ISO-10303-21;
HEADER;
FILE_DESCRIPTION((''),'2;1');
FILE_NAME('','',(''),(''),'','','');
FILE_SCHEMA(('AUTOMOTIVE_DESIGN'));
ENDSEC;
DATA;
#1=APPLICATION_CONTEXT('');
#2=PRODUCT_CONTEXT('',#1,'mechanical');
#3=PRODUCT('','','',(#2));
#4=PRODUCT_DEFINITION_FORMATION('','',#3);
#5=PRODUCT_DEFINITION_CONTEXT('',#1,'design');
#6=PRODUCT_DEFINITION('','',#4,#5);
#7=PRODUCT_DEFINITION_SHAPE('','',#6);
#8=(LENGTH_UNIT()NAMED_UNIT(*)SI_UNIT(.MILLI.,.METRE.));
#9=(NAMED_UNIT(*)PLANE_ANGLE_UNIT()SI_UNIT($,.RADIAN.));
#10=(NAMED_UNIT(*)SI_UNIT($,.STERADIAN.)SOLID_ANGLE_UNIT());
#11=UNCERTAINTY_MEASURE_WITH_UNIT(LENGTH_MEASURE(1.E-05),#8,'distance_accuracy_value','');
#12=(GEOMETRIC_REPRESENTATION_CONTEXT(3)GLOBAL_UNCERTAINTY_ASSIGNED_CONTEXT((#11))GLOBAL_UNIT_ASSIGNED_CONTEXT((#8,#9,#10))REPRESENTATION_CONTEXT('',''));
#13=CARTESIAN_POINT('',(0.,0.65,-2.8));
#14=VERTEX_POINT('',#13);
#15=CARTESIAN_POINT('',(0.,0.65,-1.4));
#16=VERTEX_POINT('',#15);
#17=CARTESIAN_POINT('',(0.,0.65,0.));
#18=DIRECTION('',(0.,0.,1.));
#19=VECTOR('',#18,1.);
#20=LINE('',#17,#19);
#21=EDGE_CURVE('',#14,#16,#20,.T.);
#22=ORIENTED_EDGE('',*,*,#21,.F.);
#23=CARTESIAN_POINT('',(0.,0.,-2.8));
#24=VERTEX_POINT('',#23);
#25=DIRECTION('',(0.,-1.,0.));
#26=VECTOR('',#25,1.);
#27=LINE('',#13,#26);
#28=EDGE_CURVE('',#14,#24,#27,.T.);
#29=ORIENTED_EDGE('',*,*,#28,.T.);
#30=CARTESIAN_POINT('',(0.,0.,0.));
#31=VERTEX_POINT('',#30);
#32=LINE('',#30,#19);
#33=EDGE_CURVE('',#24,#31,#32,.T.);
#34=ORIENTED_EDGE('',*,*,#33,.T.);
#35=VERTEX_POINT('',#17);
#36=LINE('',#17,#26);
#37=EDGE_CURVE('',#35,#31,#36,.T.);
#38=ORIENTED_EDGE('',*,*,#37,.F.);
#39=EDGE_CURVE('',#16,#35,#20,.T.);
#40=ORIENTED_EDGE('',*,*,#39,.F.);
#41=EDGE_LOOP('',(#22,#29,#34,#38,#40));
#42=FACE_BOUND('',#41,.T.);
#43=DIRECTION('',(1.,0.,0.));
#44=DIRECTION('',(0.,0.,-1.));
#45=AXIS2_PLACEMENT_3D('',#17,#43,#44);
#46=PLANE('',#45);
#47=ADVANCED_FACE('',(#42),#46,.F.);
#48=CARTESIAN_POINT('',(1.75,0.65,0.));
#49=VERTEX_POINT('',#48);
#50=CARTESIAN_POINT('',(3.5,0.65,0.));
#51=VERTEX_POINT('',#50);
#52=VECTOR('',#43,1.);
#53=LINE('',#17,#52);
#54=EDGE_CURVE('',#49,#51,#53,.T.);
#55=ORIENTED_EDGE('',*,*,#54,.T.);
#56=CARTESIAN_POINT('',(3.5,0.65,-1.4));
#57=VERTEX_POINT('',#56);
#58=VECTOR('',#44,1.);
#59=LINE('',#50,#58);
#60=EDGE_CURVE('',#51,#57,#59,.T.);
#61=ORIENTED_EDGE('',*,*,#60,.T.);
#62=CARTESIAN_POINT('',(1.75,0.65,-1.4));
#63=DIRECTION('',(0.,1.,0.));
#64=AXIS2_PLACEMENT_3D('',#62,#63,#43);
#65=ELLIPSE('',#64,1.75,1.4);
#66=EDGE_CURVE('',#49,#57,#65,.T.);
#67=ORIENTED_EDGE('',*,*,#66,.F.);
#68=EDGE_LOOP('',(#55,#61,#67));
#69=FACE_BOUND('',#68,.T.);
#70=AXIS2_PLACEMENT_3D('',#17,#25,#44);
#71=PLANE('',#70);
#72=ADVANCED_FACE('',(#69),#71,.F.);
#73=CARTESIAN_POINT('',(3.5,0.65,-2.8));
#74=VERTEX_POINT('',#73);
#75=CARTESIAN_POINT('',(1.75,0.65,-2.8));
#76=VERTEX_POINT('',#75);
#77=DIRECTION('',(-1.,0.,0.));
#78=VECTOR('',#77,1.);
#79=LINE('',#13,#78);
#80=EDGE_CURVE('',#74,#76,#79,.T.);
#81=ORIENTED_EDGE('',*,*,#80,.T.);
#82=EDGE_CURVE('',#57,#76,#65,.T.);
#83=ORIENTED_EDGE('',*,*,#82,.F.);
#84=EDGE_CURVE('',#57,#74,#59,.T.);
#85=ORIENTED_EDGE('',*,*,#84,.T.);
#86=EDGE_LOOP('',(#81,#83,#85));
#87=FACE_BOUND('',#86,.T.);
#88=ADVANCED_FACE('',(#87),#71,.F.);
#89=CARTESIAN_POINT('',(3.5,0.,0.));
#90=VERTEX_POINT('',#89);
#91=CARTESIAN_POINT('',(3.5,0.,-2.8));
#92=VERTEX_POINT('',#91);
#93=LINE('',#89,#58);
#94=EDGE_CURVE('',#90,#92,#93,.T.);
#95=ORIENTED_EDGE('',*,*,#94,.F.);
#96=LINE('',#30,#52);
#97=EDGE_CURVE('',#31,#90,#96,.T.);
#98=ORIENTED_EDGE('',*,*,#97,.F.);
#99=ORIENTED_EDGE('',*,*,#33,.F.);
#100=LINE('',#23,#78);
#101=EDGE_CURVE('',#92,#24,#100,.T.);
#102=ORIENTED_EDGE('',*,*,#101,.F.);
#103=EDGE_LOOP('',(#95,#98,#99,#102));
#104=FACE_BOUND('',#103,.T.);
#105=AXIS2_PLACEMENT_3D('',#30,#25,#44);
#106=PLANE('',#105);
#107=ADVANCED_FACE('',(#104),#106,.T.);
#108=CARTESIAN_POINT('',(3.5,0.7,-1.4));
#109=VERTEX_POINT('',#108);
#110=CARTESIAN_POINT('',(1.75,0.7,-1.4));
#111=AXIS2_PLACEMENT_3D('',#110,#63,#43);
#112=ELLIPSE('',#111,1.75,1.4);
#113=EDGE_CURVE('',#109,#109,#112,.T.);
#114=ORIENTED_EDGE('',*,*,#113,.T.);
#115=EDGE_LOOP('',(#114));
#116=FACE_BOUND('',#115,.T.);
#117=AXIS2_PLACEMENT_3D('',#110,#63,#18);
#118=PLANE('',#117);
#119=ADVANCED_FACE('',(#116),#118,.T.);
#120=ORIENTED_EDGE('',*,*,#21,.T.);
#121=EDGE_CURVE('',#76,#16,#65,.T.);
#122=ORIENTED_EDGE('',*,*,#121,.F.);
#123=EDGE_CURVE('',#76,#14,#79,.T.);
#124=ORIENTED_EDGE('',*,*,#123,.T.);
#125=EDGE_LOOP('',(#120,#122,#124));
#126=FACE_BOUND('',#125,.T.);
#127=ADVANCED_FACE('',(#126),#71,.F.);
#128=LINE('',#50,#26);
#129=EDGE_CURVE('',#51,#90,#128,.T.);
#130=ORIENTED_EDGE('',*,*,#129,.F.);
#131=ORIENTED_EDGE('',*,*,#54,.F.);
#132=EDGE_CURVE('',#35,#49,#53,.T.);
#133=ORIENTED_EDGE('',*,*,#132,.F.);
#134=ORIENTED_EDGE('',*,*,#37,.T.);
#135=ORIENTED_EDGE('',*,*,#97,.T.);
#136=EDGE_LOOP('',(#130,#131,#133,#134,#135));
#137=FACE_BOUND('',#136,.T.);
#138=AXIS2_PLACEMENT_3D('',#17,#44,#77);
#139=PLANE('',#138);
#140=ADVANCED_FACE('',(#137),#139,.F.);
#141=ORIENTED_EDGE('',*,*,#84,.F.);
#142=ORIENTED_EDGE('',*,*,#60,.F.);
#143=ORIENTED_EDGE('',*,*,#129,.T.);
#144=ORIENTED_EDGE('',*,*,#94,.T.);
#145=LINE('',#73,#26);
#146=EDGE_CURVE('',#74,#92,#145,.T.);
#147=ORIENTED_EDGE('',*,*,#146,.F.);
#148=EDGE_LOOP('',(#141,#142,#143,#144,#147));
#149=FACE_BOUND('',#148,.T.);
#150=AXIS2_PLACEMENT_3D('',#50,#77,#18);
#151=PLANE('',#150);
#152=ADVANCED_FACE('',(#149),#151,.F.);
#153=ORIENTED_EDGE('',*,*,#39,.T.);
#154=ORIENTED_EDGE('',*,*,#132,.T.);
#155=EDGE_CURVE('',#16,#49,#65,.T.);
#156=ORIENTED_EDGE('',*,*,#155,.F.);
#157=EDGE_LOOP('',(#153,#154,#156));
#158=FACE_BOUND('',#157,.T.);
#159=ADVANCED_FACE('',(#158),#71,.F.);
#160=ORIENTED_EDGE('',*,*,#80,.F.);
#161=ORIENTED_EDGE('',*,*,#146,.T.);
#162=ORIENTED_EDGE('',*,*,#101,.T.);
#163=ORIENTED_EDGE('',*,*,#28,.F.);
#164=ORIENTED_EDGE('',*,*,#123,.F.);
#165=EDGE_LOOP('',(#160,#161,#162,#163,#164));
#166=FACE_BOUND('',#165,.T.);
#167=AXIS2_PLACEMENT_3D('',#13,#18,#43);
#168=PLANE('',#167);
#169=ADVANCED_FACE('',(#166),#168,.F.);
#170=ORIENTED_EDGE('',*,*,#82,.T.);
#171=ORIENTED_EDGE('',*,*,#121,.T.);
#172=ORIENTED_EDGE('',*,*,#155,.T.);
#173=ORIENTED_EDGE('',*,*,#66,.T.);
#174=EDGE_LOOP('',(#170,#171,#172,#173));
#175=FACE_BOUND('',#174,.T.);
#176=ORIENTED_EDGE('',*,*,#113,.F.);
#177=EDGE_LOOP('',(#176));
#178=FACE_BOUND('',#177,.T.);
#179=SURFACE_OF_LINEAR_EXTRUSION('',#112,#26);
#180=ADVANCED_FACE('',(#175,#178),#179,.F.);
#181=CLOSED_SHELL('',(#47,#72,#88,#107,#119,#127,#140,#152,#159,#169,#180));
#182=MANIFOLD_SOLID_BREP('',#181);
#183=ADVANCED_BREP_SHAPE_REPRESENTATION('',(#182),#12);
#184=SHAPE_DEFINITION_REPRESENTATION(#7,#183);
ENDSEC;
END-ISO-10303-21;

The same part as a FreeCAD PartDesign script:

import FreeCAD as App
import Part
import Sketcher

V = App.Vector
Q = App.Units.Quantity

doc = App.newDocument("Part")
body = doc.addObject("PartDesign::Body", "Body")

sketch1 = body.newObject("Sketcher::SketchObject", "Sketch")
sketch1.AttachmentSupport = (doc.getObject("XZ_Plane"), [""])
sketch1.MapMode = "FlatFace"
sketch1.addGeometry(Part.LineSegment(V(0, -2.8, 0), V(0, 0, 0)), False)
sketch1.addGeometry(Part.LineSegment(V(0, 0, 0), V(3.5, 0, 0)), False)
sketch1.addGeometry(Part.LineSegment(V(3.5, 0, 0), V(3.5, -2.8, 0)), False)
sketch1.addGeometry(Part.LineSegment(V(3.5, -2.8, 0), V(0, -2.8, 0)), False)
sketch1.addConstraint(Sketcher.Constraint("Coincident", 0, 2, 1, 1))
sketch1.addConstraint(Sketcher.Constraint("Coincident", 1, 2, 2, 1))
sketch1.addConstraint(Sketcher.Constraint("Coincident", 2, 2, 3, 1))
sketch1.addConstraint(Sketcher.Constraint("Coincident", 3, 2, 0, 1))
sketch1.addConstraint(Sketcher.Constraint("Vertical", 0))
sketch1.addConstraint(Sketcher.Constraint("Horizontal", 1))
sketch1.addConstraint(Sketcher.Constraint("Vertical", 2))
sketch1.addConstraint(Sketcher.Constraint("Horizontal", 3))
sketch1.addConstraint(Sketcher.Constraint("Coincident", 0, 2, -1, 1))
sketch1.addConstraint(Sketcher.Constraint("DistanceX", 1, 1, 1, 2, Q("3.5 mm")))
sketch1.addConstraint(Sketcher.Constraint("DistanceY", 0, 1, 0, 2, Q("2.8 mm")))
pad1 = body.newObject("PartDesign::Pad", "Pad")
pad1.Profile = sketch1
pad1.Length = 0.65
pad1.Reversed = True

sketch2 = body.newObject("Sketcher::SketchObject", "Sketch001")
sketch2.AttachmentSupport = (doc.getObject("XZ_Plane"), [""])
sketch2.MapMode = "FlatFace"
sketch2.AttachmentOffset = App.Placement(V(0, 0, -0.65), App.Rotation())
sketch2.addGeometry(Part.Ellipse(V(3.5, -1.4, 0), V(1.75, 0, 0), V(1.75, -1.4, 0)), False)
sketch2.addConstraint(Sketcher.Constraint("Block", 0))
pad2 = body.newObject("PartDesign::Pad", "Pad001")
pad2.Profile = sketch2
pad2.Length = 0.05
pad2.Reversed = True

doc.recompute()
